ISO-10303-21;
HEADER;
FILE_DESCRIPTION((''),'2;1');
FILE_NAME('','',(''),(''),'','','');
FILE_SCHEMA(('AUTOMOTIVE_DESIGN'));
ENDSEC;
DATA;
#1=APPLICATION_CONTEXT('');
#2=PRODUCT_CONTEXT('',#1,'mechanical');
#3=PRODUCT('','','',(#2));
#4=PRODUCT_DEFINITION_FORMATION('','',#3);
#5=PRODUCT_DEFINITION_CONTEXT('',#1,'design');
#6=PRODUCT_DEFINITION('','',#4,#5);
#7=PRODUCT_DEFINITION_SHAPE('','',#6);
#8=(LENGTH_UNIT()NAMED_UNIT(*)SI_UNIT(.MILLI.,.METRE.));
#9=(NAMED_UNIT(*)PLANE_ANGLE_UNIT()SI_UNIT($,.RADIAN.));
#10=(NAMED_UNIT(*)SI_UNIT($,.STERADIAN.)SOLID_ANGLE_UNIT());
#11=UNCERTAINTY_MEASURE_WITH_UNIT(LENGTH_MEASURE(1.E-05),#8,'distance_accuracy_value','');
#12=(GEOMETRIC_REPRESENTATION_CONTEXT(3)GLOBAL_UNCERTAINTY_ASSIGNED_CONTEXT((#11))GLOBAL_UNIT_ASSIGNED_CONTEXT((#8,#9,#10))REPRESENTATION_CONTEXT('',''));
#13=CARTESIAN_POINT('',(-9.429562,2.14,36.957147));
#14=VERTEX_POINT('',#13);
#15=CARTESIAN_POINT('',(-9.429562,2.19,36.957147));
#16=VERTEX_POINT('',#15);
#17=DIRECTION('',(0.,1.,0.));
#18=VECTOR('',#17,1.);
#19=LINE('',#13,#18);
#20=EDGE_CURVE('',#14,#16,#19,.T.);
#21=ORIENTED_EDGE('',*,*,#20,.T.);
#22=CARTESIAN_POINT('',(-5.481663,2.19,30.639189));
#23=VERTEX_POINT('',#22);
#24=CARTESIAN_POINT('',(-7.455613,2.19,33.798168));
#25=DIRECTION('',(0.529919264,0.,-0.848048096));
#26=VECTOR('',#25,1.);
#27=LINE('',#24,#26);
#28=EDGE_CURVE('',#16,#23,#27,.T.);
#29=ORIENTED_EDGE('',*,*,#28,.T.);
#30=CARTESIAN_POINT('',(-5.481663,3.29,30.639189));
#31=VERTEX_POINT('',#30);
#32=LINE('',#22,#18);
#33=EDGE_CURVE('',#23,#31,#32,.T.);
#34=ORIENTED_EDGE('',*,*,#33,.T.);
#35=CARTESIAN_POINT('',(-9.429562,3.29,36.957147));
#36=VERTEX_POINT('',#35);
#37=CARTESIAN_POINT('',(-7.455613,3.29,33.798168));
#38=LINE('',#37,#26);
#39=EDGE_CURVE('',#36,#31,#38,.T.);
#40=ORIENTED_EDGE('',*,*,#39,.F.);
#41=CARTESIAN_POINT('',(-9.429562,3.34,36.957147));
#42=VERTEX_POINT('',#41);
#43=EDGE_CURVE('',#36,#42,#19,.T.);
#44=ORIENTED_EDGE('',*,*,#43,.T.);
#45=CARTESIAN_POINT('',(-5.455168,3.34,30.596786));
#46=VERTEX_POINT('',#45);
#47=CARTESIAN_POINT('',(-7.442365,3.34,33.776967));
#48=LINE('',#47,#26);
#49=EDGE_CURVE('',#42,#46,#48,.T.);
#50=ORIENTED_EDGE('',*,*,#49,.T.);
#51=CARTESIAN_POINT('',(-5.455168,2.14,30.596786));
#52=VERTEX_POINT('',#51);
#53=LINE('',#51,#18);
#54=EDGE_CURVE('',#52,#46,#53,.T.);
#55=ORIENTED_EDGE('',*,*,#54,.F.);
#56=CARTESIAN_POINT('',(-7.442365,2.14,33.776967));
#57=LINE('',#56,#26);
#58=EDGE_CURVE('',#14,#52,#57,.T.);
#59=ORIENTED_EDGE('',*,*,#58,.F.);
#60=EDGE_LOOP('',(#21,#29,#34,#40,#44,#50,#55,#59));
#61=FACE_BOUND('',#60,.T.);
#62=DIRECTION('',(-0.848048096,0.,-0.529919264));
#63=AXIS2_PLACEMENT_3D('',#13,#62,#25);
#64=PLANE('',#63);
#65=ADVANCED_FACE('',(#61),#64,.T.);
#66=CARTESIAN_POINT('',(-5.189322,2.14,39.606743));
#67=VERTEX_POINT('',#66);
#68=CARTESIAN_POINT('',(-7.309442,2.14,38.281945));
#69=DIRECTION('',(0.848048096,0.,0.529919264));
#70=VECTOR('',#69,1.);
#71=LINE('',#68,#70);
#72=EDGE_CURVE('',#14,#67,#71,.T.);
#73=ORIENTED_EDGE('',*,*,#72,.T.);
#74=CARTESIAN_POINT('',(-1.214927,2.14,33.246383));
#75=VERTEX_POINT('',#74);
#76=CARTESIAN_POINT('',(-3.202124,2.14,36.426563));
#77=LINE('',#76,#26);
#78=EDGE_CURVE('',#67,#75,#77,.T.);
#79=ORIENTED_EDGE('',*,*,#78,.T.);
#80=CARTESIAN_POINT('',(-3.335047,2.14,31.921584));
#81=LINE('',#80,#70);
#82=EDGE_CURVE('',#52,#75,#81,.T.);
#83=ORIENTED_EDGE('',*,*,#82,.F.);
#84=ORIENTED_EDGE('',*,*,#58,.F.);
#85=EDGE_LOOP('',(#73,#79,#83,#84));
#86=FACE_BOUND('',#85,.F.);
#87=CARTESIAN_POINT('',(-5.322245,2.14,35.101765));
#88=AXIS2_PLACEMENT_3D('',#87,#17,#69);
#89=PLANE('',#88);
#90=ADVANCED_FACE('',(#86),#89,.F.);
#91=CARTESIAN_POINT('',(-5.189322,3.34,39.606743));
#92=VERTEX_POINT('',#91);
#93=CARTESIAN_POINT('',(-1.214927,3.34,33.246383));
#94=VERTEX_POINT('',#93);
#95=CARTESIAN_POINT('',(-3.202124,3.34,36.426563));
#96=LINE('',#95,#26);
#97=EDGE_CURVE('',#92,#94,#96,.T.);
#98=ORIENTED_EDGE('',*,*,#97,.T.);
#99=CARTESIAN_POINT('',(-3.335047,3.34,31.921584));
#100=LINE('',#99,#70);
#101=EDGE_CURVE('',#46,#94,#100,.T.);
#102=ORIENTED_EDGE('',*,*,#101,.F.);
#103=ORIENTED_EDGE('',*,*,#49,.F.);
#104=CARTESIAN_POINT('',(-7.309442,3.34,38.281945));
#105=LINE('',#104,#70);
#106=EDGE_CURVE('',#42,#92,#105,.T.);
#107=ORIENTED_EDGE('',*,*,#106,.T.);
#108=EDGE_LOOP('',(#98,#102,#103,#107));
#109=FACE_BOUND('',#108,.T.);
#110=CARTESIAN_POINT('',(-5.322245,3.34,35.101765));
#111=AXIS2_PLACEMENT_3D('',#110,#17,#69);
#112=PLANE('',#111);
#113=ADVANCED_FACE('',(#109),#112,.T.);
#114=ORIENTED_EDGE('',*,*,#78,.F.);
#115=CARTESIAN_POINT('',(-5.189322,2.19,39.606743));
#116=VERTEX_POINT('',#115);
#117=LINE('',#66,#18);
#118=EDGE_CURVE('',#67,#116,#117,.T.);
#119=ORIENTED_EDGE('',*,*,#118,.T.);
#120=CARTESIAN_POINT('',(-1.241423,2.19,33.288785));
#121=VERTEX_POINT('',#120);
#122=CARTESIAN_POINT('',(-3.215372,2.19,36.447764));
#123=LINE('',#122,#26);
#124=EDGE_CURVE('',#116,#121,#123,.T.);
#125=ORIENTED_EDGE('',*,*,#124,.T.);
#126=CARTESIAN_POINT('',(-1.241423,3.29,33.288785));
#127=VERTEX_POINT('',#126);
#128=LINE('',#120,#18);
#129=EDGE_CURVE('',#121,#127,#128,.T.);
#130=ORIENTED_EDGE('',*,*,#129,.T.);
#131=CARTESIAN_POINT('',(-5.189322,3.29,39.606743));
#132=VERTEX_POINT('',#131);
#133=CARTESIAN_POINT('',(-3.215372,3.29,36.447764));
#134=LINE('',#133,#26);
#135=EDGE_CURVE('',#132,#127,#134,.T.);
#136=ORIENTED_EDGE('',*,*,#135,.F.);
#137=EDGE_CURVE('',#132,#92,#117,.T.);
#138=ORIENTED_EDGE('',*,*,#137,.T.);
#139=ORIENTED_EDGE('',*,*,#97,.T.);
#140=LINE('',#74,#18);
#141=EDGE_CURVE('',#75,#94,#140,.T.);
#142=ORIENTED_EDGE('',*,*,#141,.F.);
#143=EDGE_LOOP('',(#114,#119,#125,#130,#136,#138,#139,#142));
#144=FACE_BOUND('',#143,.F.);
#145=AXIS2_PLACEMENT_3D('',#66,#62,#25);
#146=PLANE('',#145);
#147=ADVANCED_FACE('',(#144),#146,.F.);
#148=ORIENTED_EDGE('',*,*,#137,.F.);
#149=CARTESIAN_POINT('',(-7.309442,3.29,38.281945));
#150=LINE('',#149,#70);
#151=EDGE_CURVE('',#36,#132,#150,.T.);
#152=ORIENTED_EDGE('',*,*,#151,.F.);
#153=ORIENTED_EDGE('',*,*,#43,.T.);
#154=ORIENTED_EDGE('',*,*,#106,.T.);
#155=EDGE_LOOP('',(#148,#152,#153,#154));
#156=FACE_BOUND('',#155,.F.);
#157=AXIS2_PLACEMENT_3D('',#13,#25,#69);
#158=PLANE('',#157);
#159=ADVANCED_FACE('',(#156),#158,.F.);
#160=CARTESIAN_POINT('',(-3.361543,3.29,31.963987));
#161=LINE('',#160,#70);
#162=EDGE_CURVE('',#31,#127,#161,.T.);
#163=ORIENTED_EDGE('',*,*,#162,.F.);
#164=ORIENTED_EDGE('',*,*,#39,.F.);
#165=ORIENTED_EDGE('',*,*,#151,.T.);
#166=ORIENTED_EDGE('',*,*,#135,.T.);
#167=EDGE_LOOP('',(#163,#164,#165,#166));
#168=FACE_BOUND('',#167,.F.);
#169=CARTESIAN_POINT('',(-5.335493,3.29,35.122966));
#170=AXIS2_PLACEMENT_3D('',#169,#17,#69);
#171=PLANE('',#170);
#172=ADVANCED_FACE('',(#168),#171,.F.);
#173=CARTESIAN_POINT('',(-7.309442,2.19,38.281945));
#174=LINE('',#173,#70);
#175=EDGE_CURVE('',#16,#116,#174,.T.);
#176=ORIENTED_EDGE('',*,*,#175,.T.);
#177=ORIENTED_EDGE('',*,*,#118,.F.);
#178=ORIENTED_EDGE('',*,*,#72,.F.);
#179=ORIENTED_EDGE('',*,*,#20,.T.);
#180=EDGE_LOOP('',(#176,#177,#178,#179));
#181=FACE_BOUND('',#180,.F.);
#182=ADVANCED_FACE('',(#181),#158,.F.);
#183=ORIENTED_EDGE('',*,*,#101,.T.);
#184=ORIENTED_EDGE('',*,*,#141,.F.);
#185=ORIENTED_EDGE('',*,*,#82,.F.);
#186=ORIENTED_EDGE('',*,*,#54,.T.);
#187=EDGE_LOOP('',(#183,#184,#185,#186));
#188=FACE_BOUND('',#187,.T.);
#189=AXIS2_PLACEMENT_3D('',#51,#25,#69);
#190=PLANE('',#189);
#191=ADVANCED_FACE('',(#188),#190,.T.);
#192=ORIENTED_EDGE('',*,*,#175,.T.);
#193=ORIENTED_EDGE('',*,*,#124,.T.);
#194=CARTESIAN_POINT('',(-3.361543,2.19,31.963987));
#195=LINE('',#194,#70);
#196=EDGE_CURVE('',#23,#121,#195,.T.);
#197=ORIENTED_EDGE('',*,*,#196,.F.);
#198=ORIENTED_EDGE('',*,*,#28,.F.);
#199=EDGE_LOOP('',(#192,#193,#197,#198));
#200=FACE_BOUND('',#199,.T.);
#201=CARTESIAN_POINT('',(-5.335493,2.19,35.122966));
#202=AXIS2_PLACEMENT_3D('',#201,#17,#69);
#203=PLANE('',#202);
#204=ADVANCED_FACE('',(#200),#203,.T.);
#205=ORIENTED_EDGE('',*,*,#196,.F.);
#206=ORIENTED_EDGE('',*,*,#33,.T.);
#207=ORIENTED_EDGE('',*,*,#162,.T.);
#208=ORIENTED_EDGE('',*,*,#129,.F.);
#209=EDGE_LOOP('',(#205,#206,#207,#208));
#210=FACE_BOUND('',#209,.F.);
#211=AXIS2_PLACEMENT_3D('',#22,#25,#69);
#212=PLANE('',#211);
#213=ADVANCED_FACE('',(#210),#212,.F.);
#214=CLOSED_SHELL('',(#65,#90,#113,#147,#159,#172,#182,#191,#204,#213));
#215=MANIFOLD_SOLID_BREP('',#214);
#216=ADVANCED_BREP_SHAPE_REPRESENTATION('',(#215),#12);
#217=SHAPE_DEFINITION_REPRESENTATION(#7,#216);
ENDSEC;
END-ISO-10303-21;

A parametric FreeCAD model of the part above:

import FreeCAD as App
import Part
import Sketcher
from FreeCAD import Vector
Q = App.Units.Quantity


def add_polygon(sketch, points):
    """Adds a closed chain of lines whose ends are joined by coincident constraints."""
    first, n = sketch.GeometryCount, len(points)
    for a, b in zip(points, points[1:] + points[:1]):
        sketch.addGeometry(Part.LineSegment(App.Vector(*a, 0), App.Vector(*b, 0)), False)
    for i in range(n):
        sketch.addConstraint(Sketcher.Constraint("Coincident", first + i, 2, first + (i + 1) % n, 1))

doc = App.newDocument("Part")
params = doc.addObject("Spreadsheet::Sheet", "Params")
for row, (alias, value) in enumerate([
    ("sketch1_width", "5 mm"),
    ("sketch1_height", "7.45 mm"),
    ("pad1_length", "1.1 mm"),
    ("sketch2_width", "5 mm"),
    ("sketch2_height", "7.5 mm"),
    ("pad2_length", "1.2 mm"),
], start=1):
    params.set(f"A{row}", alias)
    params.set(f"B{row}", "=" + value)
    params.setAlias(f"B{row}", alias)

body = doc.addObject("PartDesign::Body", "Body")

# Sketch on XY plane
sketch1 = body.newObject("Sketcher::SketchObject", "Sketch")
sketch1.AttachmentSupport = (doc.getObject("XY_Plane"), [""])
sketch1.MapMode = "FlatFace"
sketch1.AttachmentOffset = App.Placement(Vector(0, 0, 0.05), App.Rotation())
add_polygon(sketch1, [(0, 7), (0, 0), (5, 0), (5, 7)])  # lines 0-3
sketch1.addConstraint(Sketcher.Constraint("Vertical", 0))
sketch1.addConstraint(Sketcher.Constraint("Horizontal", 1))
sketch1.addConstraint(Sketcher.Constraint("Vertical", 2))
sketch1.addConstraint(Sketcher.Constraint("Horizontal", 3))
sketch1.addConstraint(Sketcher.Constraint("Coincident", 0, 2, -1, 1))
sketch1.addConstraint(Sketcher.Constraint("DistanceX", 1, 1, 1, 2, Q("5 mm")))
sketch1.addConstraint(Sketcher.Constraint("DistanceY", 0, 2, 0, 1, Q("7.45 mm")))
sketch1.setExpression("Constraints[9]", "Params.sketch1_width")
sketch1.setExpression("Constraints[10]", "Params.sketch1_height")
pad1 = body.newObject("PartDesign::Pad", "Pad")
pad1.Profile = sketch1
pad1.setExpression("Length", "Params.pad1_length")
body2 = doc.addObject("PartDesign::Body", "Body001")

# Sketch on XY plane
sketch2 = body2.newObject("Sketcher::SketchObject", "Sketch001")
sketch2.AttachmentSupport = (doc.getObject("XY_Plane001"), [""])
sketch2.MapMode = "FlatFace"
add_polygon(sketch2, [(0, 8), (0, 0), (5, 0), (5, 8)])  # lines 0-3
sketch2.addConstraint(Sketcher.Constraint("Vertical", 0))
sketch2.addConstraint(Sketcher.Constraint("Horizontal", 1))
sketch2.addConstraint(Sketcher.Constraint("Vertical", 2))
sketch2.addConstraint(Sketcher.Constraint("Horizontal", 3))
sketch2.addConstraint(Sketcher.Constraint("Coincident", 0, 2, -1, 1))
sketch2.addConstraint(Sketcher.Constraint("DistanceX", 1, 1, 1, 2, Q("5 mm")))
sketch2.addConstraint(Sketcher.Constraint("DistanceY", 0, 2, 0, 1, Q("7.5 mm")))
sketch2.setExpression("Constraints[9]", "Params.sketch2_width")
sketch2.setExpression("Constraints[10]", "Params.sketch2_height")
pad2 = body2.newObject("PartDesign::Pad", "Pad001")
pad2.Profile = sketch2
pad2.setExpression("Length", "Params.pad2_length")
doc.recompute()

boolean = body2.newObject("PartDesign::Boolean", "Boolean")
boolean.Type = "Cut"
boolean.addObjects([body])
body3 = doc.addObject("PartDesign::Body", "Body002")
doc.recompute()

body2.Placement = App.Placement(Vector(0, 0, 0), App.Rotation(Vector(1, 0, 0), 270))
boolean2 = body3.newObject("PartDesign::Boolean", "Boolean001")
boolean2.Type = "Fuse"
boolean2.addObjects([body2])
body4 = doc.addObject("PartDesign::Body", "Body003")
doc.recompute()

body3.Placement = App.Placement(Vector(0, 0, 0), App.Rotation(Vector(0, 1, 0), 328))
boolean3 = body4.newObject("PartDesign::Boolean", "Boolean002")
boolean3.Type = "Fuse"
boolean3.addObjects([body3])
body5 = doc.addObject("PartDesign::Body", "Body004")
doc.recompute()

body4.Placement = App.Placement(Vector(-9.429562, 2.14, 36.957147), App.Rotation(Vector(0, 0, 1), 0))
boolean4 = body5.newObject("PartDesign::Boolean", "Boolean003")
boolean4.Type = "Fuse"
boolean4.addObjects([body4])

doc.recompute()
